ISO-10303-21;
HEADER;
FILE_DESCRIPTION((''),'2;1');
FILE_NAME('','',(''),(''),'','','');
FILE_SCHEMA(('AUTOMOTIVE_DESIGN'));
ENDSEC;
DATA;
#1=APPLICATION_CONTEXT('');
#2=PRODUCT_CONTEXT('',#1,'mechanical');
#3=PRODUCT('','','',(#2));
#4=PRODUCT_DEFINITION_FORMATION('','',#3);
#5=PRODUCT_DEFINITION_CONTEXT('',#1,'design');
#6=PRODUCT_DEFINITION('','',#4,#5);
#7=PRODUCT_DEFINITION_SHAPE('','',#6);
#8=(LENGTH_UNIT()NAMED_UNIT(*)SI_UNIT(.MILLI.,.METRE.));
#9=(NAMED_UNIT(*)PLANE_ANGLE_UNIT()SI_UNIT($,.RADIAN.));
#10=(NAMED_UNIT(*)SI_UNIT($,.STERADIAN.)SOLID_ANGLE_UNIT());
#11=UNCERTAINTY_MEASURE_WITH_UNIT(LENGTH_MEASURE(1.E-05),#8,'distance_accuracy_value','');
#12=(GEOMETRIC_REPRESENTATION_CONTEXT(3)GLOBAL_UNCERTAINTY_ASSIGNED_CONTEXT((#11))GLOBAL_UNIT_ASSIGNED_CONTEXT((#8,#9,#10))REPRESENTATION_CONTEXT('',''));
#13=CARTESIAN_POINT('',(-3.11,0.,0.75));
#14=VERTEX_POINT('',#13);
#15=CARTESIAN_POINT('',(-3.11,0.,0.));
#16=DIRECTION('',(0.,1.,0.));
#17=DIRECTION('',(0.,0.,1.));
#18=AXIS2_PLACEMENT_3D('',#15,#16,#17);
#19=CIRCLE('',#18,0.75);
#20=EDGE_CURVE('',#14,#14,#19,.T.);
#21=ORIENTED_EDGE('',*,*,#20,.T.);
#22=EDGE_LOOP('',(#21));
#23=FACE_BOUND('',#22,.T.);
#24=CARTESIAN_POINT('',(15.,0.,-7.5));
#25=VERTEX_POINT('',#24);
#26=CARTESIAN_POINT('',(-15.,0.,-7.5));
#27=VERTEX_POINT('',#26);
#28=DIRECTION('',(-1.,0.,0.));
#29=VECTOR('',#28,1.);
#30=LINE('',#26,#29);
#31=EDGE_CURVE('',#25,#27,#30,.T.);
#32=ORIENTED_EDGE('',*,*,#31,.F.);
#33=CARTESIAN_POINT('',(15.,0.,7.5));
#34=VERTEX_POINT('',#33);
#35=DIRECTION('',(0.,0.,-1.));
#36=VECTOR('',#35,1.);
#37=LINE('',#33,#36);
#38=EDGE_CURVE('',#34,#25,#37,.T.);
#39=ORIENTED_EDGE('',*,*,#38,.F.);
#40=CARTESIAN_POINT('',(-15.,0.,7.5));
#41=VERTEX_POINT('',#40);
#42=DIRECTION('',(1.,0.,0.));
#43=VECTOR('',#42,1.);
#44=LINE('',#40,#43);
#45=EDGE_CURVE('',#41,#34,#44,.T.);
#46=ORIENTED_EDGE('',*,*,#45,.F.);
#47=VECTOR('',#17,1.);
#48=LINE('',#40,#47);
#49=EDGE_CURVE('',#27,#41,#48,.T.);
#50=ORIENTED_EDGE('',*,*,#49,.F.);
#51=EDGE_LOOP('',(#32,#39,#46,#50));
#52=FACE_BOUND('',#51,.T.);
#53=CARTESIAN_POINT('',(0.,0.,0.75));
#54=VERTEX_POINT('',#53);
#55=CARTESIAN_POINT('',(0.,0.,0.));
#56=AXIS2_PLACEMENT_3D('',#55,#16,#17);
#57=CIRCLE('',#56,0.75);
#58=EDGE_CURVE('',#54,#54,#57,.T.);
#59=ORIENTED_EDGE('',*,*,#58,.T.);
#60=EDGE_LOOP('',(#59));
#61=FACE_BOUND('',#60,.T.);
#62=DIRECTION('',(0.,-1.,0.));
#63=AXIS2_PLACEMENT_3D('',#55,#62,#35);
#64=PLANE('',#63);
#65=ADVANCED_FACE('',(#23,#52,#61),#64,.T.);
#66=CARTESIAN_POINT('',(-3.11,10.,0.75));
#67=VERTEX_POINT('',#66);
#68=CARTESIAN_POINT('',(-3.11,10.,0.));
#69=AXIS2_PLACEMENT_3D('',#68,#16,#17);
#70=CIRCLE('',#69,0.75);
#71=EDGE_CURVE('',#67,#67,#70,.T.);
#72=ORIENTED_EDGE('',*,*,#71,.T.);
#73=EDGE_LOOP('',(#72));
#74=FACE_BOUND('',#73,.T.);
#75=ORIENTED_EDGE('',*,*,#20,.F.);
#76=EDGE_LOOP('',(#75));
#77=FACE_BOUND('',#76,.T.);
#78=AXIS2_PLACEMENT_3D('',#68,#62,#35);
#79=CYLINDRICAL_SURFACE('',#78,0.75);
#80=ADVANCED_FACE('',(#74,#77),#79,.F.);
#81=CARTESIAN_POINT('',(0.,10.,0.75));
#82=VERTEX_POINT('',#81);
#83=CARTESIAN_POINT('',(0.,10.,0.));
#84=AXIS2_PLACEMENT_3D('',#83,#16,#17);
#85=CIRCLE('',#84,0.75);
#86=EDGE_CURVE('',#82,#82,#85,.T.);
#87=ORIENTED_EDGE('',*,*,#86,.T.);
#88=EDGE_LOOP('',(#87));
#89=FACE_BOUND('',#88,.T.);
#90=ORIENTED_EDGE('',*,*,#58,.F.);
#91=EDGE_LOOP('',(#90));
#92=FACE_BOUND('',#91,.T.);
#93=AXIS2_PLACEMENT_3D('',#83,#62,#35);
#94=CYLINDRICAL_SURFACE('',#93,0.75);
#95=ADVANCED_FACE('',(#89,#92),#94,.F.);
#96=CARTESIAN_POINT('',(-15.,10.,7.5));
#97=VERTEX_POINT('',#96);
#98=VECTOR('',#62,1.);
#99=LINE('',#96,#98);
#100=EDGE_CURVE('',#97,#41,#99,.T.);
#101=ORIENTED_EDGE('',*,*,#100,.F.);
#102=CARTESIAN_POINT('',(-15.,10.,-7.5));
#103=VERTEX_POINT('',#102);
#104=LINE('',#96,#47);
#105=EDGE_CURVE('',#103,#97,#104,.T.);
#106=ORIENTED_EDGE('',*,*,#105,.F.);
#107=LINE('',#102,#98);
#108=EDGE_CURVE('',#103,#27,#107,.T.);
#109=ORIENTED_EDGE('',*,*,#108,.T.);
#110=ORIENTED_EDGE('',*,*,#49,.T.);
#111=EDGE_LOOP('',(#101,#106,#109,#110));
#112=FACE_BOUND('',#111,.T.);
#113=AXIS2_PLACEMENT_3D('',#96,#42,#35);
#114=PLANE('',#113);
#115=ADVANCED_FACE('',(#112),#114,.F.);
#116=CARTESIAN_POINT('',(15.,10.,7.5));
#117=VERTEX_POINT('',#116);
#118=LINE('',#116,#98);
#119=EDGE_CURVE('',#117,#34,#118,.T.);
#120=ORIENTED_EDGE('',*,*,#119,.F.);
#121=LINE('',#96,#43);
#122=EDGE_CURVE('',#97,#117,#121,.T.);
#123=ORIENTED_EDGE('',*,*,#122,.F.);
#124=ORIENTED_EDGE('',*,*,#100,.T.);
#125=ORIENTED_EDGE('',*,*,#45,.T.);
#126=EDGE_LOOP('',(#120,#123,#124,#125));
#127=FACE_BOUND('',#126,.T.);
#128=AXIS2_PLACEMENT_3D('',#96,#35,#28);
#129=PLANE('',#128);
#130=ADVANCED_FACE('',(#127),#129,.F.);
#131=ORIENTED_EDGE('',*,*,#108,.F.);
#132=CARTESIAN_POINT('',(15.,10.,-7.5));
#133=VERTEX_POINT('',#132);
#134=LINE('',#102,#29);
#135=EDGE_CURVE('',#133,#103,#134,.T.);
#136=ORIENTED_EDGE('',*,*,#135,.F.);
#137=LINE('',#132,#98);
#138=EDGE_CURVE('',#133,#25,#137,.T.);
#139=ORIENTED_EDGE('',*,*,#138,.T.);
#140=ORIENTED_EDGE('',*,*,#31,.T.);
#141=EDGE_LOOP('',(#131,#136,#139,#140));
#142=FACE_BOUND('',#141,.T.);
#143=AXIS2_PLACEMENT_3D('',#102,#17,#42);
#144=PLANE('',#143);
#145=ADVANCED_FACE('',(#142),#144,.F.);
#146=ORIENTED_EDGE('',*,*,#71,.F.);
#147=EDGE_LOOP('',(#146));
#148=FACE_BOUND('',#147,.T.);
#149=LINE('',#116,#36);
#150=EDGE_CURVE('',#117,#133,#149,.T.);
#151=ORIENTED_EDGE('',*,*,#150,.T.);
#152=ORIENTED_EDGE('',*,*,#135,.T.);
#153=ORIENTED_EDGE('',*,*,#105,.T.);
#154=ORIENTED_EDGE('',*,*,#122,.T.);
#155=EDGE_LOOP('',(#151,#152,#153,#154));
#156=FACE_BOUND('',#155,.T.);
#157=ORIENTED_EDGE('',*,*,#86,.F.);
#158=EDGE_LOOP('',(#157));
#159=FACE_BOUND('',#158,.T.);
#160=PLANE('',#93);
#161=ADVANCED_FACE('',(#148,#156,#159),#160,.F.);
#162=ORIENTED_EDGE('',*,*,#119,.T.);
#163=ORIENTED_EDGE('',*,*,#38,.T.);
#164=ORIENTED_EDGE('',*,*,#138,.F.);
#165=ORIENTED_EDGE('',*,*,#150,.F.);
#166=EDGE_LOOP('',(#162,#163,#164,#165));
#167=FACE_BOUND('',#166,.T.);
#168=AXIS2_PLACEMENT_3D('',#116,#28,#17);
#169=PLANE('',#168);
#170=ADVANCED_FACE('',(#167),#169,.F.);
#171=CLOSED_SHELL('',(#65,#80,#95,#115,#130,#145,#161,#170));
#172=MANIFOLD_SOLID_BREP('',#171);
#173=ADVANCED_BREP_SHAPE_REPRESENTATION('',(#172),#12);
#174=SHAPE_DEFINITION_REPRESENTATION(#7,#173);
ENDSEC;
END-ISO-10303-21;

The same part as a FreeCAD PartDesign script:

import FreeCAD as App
import Part
import Sketcher
from FreeCAD import Vector


def add_polygon(sketch, points):
    """Adds a closed chain of lines whose ends are joined by coincident constraints."""
    first, n = sketch.GeometryCount, len(points)
    for a, b in zip(points, points[1:] + points[:1]):
        sketch.addGeometry(Part.LineSegment(App.Vector(*a, 0), App.Vector(*b, 0)), False)
    for i in range(n):
        sketch.addConstraint(Sketcher.Constraint("Coincident", first + i, 2, first + (i + 1) % n, 1))

doc = App.newDocument("Part")
body = doc.addObject("PartDesign::Body", "Body")

sketch1 = body.newObject("Sketcher::SketchObject", "Sketch")
sketch1.AttachmentSupport = (doc.getObject("XZ_Plane"), [""])
sketch1.MapMode = "FlatFace"
add_polygon(sketch1, [(-15, -7.5), (-15, 7.5), (15, 7.5), (15, -7.5)])
sketch1.addGeometry(Part.Circle(Vector(-3.1, 0, 0), Vector(0, 0, 1), 0.8), False)
sketch1.addGeometry(Part.Circle(Vector(0, 0, 0), Vector(0, 0, 1), 0.8), False)
sketch1.addConstraint([
    Sketcher.Constraint("Vertical", 0),
    Sketcher.Constraint("Horizontal", 1),
    Sketcher.Constraint("Vertical", 2),
    Sketcher.Constraint("Horizontal", 3),
    Sketcher.Constraint("Coincident", 5, 3, -1, 1),
    Sketcher.Constraint("Equal", 4, 5),
    Sketcher.Constraint("Symmetric", 0, 2, 2, 2, -1, 1),
    Sketcher.Constraint("PointOnObject", 4, 3, -1),
    Sketcher.Constraint("Diameter", 4, 1.5),
    Sketcher.Constraint("DistanceX", 1, 1, 1, 2, 30.0),
    Sketcher.Constraint("DistanceY", 0, 1, 0, 2, 15.0),
    Sketcher.Constraint("DistanceX", 4, 3, -1, 1, 3.11),
])
pad1 = body.newObject("PartDesign::Pad", "Pad")
pad1.Profile = sketch1
pad1.Length = 10
pad1.Reversed = True

doc.recompute()
